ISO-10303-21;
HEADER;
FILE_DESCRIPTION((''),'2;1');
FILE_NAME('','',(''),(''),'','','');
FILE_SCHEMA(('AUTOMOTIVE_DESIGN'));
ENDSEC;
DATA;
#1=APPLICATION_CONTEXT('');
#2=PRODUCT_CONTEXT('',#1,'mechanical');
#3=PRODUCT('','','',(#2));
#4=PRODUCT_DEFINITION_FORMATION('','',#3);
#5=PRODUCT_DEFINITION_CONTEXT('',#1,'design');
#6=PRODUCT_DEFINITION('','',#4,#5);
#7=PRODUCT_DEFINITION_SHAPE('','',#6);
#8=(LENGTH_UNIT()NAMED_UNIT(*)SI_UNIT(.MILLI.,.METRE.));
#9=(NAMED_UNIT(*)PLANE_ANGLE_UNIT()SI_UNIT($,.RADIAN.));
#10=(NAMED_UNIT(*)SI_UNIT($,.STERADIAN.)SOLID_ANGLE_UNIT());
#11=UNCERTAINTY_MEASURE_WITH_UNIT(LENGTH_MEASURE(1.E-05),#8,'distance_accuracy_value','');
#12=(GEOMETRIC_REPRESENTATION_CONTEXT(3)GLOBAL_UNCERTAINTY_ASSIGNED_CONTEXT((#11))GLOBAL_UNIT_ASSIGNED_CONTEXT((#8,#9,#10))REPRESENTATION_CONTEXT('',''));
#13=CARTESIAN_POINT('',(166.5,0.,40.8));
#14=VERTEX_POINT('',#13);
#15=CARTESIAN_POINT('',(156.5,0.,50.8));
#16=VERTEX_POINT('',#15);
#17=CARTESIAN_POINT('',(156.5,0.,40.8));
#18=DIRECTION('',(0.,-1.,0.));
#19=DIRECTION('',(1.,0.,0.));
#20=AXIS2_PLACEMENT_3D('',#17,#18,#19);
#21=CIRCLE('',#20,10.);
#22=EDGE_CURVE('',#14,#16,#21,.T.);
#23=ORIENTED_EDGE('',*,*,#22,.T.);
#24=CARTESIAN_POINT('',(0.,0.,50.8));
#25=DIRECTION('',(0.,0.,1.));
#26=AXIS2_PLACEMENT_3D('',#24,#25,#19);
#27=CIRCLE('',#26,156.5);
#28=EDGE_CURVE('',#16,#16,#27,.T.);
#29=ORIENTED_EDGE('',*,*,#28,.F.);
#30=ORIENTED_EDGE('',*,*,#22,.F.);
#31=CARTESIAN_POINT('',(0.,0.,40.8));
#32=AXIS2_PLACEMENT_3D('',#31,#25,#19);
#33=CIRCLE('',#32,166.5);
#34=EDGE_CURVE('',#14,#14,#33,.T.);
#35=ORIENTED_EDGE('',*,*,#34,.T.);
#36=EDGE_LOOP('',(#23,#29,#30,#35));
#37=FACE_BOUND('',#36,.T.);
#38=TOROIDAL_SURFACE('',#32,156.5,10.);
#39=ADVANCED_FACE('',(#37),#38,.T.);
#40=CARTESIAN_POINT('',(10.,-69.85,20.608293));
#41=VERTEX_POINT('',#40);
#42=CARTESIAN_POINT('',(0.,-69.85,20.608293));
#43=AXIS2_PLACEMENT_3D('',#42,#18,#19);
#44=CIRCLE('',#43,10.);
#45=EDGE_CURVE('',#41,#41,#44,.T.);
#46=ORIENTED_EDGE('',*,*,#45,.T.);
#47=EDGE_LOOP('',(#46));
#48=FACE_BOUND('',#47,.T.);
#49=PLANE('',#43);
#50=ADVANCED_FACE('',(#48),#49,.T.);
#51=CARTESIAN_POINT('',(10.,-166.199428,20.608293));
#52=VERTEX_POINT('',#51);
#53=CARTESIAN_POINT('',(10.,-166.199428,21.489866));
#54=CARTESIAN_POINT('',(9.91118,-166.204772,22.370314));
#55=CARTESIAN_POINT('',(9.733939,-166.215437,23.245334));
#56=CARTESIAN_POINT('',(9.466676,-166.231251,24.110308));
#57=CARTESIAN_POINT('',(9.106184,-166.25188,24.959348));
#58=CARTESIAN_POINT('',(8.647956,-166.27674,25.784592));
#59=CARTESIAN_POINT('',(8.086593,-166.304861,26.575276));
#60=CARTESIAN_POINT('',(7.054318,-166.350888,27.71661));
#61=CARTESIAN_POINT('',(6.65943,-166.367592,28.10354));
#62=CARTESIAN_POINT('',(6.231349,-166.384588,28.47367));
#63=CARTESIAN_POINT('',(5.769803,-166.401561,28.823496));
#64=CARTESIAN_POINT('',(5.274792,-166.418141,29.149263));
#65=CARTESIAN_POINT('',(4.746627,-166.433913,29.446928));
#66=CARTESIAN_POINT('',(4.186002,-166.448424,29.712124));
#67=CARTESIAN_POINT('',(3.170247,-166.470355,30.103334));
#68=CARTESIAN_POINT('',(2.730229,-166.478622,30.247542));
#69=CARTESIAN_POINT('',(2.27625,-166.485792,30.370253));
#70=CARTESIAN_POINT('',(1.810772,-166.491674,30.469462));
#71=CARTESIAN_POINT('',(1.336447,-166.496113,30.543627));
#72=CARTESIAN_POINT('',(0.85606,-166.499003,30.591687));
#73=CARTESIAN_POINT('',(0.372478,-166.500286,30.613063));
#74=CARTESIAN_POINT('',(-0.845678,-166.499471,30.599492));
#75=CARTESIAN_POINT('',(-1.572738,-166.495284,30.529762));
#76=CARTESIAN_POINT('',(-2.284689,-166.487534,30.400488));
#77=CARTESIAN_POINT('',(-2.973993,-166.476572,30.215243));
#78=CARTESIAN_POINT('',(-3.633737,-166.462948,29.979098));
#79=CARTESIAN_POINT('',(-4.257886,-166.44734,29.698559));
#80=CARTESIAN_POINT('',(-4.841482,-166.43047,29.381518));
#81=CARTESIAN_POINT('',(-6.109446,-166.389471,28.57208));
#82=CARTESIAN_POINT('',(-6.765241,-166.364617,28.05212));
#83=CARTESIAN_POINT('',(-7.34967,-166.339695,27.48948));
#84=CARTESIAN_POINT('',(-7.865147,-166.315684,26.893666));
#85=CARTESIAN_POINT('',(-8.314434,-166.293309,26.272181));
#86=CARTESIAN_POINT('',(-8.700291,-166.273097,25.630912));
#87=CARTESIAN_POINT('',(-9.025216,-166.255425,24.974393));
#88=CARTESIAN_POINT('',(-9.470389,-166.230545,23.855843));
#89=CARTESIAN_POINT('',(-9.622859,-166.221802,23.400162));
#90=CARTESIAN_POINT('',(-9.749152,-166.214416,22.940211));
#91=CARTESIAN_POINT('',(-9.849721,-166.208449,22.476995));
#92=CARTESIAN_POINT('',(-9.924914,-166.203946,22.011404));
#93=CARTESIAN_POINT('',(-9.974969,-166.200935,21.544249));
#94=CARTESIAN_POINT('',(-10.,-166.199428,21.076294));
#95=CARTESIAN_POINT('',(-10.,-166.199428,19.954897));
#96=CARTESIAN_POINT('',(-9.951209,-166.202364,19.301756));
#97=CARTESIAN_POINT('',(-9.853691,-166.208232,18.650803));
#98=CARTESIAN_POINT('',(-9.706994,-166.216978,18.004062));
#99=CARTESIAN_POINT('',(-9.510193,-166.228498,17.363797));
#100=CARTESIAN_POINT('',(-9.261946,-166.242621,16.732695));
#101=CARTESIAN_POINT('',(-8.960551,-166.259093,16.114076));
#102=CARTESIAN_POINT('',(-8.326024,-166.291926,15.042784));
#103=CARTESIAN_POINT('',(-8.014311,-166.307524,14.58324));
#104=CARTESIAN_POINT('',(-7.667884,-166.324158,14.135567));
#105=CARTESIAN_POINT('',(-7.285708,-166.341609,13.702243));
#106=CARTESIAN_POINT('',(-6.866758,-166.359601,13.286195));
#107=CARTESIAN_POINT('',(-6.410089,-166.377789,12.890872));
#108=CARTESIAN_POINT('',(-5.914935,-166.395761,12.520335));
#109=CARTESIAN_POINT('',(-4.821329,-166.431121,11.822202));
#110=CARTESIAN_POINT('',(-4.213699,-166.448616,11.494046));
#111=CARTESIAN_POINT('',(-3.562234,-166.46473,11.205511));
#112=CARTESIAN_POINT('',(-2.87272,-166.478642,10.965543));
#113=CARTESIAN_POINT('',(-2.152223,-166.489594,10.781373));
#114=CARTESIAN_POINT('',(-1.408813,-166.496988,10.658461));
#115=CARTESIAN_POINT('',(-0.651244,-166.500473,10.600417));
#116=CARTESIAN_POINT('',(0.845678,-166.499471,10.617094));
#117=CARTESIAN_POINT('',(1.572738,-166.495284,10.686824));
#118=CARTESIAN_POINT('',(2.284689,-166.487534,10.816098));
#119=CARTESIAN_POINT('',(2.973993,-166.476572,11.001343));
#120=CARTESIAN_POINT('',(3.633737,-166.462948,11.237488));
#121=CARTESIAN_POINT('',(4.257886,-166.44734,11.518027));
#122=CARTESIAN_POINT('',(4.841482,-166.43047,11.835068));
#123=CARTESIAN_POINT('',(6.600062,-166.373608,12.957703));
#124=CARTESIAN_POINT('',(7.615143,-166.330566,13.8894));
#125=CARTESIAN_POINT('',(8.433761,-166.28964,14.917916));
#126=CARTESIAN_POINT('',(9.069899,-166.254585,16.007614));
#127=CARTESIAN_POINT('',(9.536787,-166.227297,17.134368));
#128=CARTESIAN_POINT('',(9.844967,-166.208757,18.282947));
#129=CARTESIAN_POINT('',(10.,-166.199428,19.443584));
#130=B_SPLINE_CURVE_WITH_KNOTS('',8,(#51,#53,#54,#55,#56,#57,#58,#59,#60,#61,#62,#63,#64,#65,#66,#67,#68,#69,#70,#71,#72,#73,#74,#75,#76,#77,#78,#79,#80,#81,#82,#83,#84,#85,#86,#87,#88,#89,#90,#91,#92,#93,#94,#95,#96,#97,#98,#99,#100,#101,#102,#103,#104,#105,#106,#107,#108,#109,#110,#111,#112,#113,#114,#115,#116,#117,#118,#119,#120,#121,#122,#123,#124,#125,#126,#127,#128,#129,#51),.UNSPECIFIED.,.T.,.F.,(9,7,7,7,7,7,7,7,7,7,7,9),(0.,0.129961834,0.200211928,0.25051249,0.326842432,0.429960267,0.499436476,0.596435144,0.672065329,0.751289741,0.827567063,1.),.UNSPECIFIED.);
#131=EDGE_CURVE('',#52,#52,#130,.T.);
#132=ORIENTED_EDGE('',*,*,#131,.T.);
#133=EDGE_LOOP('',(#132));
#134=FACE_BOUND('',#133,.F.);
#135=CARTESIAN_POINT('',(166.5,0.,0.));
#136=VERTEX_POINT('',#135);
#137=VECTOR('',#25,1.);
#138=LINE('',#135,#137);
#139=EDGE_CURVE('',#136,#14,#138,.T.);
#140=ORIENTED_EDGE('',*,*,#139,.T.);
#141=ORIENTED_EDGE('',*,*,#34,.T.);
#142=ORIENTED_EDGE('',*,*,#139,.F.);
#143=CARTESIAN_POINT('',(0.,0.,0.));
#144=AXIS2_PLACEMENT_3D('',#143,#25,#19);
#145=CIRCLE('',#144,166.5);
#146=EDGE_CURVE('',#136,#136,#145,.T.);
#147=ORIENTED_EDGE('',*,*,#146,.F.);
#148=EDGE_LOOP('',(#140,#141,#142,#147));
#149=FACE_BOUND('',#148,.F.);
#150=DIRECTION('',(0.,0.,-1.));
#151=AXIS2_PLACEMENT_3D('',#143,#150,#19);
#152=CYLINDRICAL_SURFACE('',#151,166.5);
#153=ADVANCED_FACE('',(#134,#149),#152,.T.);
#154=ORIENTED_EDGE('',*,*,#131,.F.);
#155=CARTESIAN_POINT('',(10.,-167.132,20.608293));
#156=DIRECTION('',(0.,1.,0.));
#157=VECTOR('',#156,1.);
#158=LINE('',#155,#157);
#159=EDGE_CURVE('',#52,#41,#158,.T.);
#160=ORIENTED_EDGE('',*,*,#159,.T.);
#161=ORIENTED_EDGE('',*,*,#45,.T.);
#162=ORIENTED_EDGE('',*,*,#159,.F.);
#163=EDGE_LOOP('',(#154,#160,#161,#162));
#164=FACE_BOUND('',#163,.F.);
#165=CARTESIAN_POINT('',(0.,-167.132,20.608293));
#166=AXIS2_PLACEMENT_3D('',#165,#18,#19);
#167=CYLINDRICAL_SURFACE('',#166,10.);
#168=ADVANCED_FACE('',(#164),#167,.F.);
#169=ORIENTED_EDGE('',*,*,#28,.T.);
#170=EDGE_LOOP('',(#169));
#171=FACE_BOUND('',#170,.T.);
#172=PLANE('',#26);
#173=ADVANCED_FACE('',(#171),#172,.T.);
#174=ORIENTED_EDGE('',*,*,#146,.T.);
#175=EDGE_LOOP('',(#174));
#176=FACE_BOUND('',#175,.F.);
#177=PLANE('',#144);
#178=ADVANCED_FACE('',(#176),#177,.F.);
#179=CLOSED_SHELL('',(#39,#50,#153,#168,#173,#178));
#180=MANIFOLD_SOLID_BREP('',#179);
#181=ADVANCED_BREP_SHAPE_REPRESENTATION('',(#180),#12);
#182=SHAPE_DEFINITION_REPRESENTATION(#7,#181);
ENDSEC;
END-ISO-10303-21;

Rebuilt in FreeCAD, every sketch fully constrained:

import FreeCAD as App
import Part
import Sketcher

V = App.Vector


def edges_at(feature, points):
    """Names of the edges that pass closest to the given points."""
    edges = feature.Shape.Edges
    near = lambda p: min(range(len(edges)), key=lambda i: edges[i].distToShape(Part.Vertex(*p))[0])
    return sorted({f"Edge{near(p) + 1}" for p in points})

doc = App.newDocument("Part")
body = doc.addObject("PartDesign::Body", "Body")

sketch1 = body.newObject("Sketcher::SketchObject", "Sketch")
sketch1.AttachmentSupport = (doc.getObject("XY_Plane"), [""])
sketch1.MapMode = "FlatFace"
sketch1.addGeometry(Part.Circle(V(0, 0, 0), V(0, 0, 1), 166.5), False)
sketch1.addConstraint([
    Sketcher.Constraint("Coincident", 0, 3, -1, 1),
    Sketcher.Constraint("Diameter", 0, 333.0),
])
pad1 = body.newObject("PartDesign::Pad", "Pad")
pad1.Profile = sketch1
pad1.Length = 50.8
doc.recompute()

fillet = body.newObject("PartDesign::Fillet", "Fillet")
fillet.Base = (pad1, edges_at(pad1, [(-166.5, 0, 50.8)]))
fillet.Radius = 10

sketch2 = body.newObject("Sketcher::SketchObject", "Sketch001")
sketch2.AttachmentSupport = (doc.getObject("XZ_Plane"), [""])
sketch2.MapMode = "FlatFace"
sketch2.AttachmentOffset = App.Placement(V(0, 0, 167.132), App.Rotation())
sketch2.addGeometry(Part.Circle(V(0, 20.608293, 0), V(0, 0, 1), 10), False)
sketch2.addConstraint([
    Sketcher.Constraint("PointOnObject", 0, 3, -2),
    Sketcher.Constraint("Diameter", 0, 20.0),
    Sketcher.Constraint("DistanceY", -1, 1, 0, 3, 20.608293),
])
pocket1 = body.newObject("PartDesign::Pocket", "Pocket")
pocket1.Profile = sketch2
pocket1.Length = 97.282

doc.recompute()
